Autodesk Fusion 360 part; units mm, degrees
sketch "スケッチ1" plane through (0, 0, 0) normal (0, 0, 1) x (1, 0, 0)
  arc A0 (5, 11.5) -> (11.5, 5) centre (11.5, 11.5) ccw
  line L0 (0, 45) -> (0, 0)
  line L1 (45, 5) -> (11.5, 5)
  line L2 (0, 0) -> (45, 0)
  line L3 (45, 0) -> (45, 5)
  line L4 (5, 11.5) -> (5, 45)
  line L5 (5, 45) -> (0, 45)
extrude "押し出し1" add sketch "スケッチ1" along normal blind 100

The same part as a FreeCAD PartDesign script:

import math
import FreeCAD as App
import Part
import Sketcher

doc = App.newDocument("Part")
params = doc.addObject("Spreadsheet::Sheet", "Params")
for row, (alias, value) in enumerate([
    ("sketch1_radius", "6.5 mm"),
    ("sketch1_width", "5 mm"),
    ("sketch1_width2", "45 mm"),
    ("pad1_length", "100 mm"),
], start=1):
    params.set(f"A{row}", alias)
    params.set(f"B{row}", "=" + value)
    params.setAlias(f"B{row}", alias)

body = doc.addObject("PartDesign::Body", "Body")

# Sketch on XY plane
sketch1 = body.newObject("Sketcher::SketchObject", "Sketch")
sketch1.AttachmentSupport = (doc.getObject("XY_Plane"), [""])
sketch1.MapMode = "FlatFace"
sketch1.addGeometry([
    Part.ArcOfCircle(Part.Circle(App.Vector(12, 12, 0), App.Vector(0, 0, 1), 6), math.radians(180), math.radians(270)),  # 0
    Part.LineSegment(App.Vector(5, 12, 0), App.Vector(5, 45, 0)),  # 1
    Part.LineSegment(App.Vector(5, 45, 0), App.Vector(0, 45, 0)),  # 2
    Part.LineSegment(App.Vector(0, 45, 0), App.Vector(0, 0, 0)),  # 3
    Part.LineSegment(App.Vector(0, 0, 0), App.Vector(45, 0, 0)),  # 4
    Part.LineSegment(App.Vector(45, 0, 0), App.Vector(45, 5, 0)),  # 5
    Part.LineSegment(App.Vector(45, 5, 0), App.Vector(12, 5, 0)),  # 6
], False)
sketch1.addConstraint([
    Sketcher.Constraint("Tangent", 0, 1, 1, 1),
    Sketcher.Constraint("Coincident", 1, 2, 2, 1),
    Sketcher.Constraint("Coincident", 2, 2, 3, 1),
    Sketcher.Constraint("Coincident", 3, 2, 4, 1),
    Sketcher.Constraint("Coincident", 4, 2, 5, 1),
    Sketcher.Constraint("Coincident", 5, 2, 6, 1),
    Sketcher.Constraint("Tangent", 6, 2, 0, 2),
    Sketcher.Constraint("Vertical", 1),
    Sketcher.Constraint("Horizontal", 2),
    Sketcher.Constraint("Vertical", 3),
    Sketcher.Constraint("Horizontal", 4),
    Sketcher.Constraint("Vertical", 5),
    Sketcher.Constraint("Horizontal", 6),
    Sketcher.Constraint("Coincident", 3, 2, -1, 1),
    Sketcher.Constraint("Equal", 6, 1),
    Sketcher.Constraint("Equal", 4, 3),
    Sketcher.Constraint("Radius", 0, 6.5),
    Sketcher.Constraint("DistanceX", 2, 2, 2, 1, 5.0),
    Sketcher.Constraint("DistanceX", 4, 1, 4, 2, 45.0),
])
sketch1.setExpression("Constraints[16]", "Params.sketch1_radius")
sketch1.setExpression("Constraints[17]", "Params.sketch1_width")
sketch1.setExpression("Constraints[18]", "Params.sketch1_width2")
pad1 = body.newObject("PartDesign::Pad", "Pad")
pad1.Profile = sketch1
pad1.setExpression("Length", "Params.pad1_length")

doc.recompute()
